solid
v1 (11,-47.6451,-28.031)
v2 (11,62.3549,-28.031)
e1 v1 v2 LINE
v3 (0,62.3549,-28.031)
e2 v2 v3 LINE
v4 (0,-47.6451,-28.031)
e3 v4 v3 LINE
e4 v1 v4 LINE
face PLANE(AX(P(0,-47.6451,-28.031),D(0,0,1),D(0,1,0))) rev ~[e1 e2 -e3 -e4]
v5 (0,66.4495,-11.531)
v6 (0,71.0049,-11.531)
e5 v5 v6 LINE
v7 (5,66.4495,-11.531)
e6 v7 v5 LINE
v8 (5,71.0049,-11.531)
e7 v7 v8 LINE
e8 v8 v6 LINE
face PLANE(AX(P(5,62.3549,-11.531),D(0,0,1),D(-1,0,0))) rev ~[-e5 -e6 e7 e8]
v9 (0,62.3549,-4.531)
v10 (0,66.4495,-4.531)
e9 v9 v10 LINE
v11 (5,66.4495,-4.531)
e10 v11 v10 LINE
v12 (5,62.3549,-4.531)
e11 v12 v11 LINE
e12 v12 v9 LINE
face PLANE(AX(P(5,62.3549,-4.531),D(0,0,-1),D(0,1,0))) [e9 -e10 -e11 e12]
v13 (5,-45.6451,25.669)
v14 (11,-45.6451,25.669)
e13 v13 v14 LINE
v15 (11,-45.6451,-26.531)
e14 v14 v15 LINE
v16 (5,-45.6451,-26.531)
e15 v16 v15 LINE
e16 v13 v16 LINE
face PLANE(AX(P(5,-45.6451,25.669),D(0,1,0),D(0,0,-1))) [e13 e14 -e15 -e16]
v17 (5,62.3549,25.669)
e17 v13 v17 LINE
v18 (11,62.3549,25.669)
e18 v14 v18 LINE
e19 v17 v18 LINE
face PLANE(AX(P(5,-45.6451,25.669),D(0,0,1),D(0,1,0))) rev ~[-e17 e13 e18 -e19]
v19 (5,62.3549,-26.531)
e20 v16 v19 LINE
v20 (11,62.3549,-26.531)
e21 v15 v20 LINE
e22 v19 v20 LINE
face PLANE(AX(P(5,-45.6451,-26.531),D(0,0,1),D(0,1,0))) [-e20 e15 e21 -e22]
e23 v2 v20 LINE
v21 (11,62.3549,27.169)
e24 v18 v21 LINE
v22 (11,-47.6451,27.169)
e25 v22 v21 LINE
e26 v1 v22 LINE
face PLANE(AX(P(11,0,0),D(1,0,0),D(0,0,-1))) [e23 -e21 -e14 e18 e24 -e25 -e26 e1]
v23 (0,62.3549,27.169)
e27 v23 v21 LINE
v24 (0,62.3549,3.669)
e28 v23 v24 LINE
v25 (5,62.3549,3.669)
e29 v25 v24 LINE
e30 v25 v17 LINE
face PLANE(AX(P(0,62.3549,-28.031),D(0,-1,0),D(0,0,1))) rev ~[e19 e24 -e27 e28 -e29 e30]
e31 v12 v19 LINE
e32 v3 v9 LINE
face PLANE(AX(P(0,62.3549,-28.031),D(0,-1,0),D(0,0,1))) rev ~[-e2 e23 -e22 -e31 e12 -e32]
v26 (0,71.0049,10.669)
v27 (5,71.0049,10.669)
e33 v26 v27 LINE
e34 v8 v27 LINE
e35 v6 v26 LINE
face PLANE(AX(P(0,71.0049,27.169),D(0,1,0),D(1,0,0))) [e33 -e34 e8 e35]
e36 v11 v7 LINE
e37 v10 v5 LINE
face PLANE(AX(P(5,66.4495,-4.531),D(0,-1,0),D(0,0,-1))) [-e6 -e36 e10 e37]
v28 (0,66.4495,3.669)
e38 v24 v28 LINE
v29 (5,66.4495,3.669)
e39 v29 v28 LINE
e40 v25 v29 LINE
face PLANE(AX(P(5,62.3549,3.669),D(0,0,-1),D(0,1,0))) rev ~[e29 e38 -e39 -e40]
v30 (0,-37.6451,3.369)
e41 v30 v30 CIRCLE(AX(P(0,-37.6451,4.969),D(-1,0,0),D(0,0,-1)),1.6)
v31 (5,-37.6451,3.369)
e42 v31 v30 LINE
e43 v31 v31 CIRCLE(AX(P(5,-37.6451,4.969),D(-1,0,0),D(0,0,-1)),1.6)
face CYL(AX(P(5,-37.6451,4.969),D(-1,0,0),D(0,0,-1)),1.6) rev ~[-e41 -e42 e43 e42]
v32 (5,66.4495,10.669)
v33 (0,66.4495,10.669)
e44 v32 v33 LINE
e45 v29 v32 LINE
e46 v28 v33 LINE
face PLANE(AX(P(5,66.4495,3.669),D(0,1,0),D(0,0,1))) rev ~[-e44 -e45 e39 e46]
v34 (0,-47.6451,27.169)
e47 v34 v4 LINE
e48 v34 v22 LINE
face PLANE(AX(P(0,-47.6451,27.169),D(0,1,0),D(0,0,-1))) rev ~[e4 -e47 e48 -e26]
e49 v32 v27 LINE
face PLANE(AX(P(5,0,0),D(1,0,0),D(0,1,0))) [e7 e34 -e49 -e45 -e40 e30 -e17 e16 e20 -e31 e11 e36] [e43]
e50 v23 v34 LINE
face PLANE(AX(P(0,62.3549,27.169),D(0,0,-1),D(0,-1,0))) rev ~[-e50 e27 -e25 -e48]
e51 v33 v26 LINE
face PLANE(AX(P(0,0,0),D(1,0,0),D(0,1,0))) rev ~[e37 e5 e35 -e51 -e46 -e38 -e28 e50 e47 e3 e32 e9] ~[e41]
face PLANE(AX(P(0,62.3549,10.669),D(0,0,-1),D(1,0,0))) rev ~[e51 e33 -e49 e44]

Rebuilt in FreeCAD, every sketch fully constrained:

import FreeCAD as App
import Part
import Sketcher

V = App.Vector
Q = App.Units.Quantity


def add_polygon(sketch, points):
    """Adds a closed chain of lines whose ends are joined by coincident constraints."""
    first, n = sketch.GeometryCount, len(points)
    for a, b in zip(points, points[1:] + points[:1]):
        sketch.addGeometry(Part.LineSegment(App.Vector(*a, 0), App.Vector(*b, 0)), False)
    for i in range(n):
        sketch.addConstraint(Sketcher.Constraint("Coincident", first + i, 2, first + (i + 1) % n, 1))

doc = App.newDocument("Part")
body = doc.addObject("PartDesign::Body", "Body")

# Sketch on YZ plane
sketch1 = body.newObject("Sketcher::SketchObject", "Sketch")
sketch1.AttachmentSupport = (doc.getObject("YZ_Plane"), [""])
sketch1.MapMode = "FlatFace"
add_polygon(sketch1, [(62, -28), (62, 27), (-48, 27), (-48, -28)])  # lines 0-3
sketch1.addConstraint([
    Sketcher.Constraint("Vertical", 0),
    Sketcher.Constraint("Horizontal", 1),
    Sketcher.Constraint("Vertical", 2),
    Sketcher.Constraint("Horizontal", 3),
    Sketcher.Constraint("DistanceX", 1, 2, 1, 1, Q("110 mm")),
    Sketcher.Constraint("DistanceY", 0, 1, 0, 2, Q("55.2 mm")),
    Sketcher.Constraint("DistanceX", -1, 1, 0, 2, Q("62.355 mm")),
    Sketcher.Constraint("DistanceY", -1, 1, 0, 2, Q("27.169 mm")),
])
pad1 = body.newObject("PartDesign::Pad", "Pad")
pad1.Profile = sketch1
pad1.Length = 5

# Sketch on YZ plane
sketch2 = body.newObject("Sketcher::SketchObject", "Sketch001")
sketch2.AttachmentSupport = (doc.getObject("YZ_Plane"), [""])
sketch2.MapMode = "FlatFace"
sketch2.AttachmentOffset = App.Placement(V(0, 0, 5), App.Rotation())
sketch2.addGeometry(Part.Circle(V(-37.6, 5, 0), V(0, 0, 1), 1.6), False)
sketch2.addConstraint([
    Sketcher.Constraint("Diameter", 0, Q("3.2 mm")),
    Sketcher.Constraint("DistanceX", 0, 3, -1, 1, Q("37.645 mm")),
    Sketcher.Constraint("DistanceY", -1, 1, 0, 3, Q("4.969 mm")),
])
doc.recompute()
hole = body.newObject("PartDesign::Hole", "Hole")
hole.Profile = sketch2
hole.ThreadType = "None"
hole.Diameter = 3.2
hole.DepthType = "ThroughAll"

# Sketch on YZ plane
sketch3 = body.newObject("Sketcher::SketchObject", "Sketch002")
sketch3.AttachmentSupport = (doc.getObject("YZ_Plane"), [""])
sketch3.MapMode = "FlatFace"
sketch3.AttachmentOffset = App.Placement(V(0, 0, 5), App.Rotation())
add_polygon(sketch3, [(-47.6, 27.2), (-47.6, -28), (62.4, -28), (62.4, -26.5), (-45.6, -26.5), (-45.6, 25.7), (62.4, 25.7), (62.4, 27.2)])  # lines 0-7
sketch3.addConstraint([
    Sketcher.Constraint("Vertical", 0),
    Sketcher.Constraint("Horizontal", 1),
    Sketcher.Constraint("Vertical", 2),
    Sketcher.Constraint("Horizontal", 3),
    Sketcher.Constraint("Vertical", 4),
    Sketcher.Constraint("Horizontal", 5),
    Sketcher.Constraint("Vertical", 6),
    Sketcher.Constraint("Horizontal", 7),
    Sketcher.Constraint("Vertical", 2, 2, 5, 2),
    Sketcher.Constraint("Equal", 2, 6),
    Sketcher.Constraint("DistanceY", 2, 1, 2, 2, Q("1.5 mm")),
    Sketcher.Constraint("DistanceX", 0, 2, 3, 2, Q("2 mm")),
    Sketcher.Constraint("DistanceX", 1, 1, 1, 2, Q("110 mm")),
    Sketcher.Constraint("DistanceY", 0, 2, 0, 1, Q("55.2 mm")),
    Sketcher.Constraint("DistanceX", 0, 2, -1, 1, Q("47.645 mm")),
    Sketcher.Constraint("DistanceY", 0, 2, -1, 1, Q("28.031 mm")),
])
pad2 = body.newObject("PartDesign::Pad", "Pad001")
pad2.Profile = sketch3
pad2.Length = 6

# Sketch on XZ plane
sketch4 = body.newObject("Sketcher::SketchObject", "Sketch003")
sketch4.AttachmentSupport = (doc.getObject("XZ_Plane"), [""])
sketch4.MapMode = "FlatFace"
sketch4.AttachmentOffset = App.Placement(V(0, 0, -62.3549), App.Rotation())
add_polygon(sketch4, [(0, 11), (5, 11), (5, -12), (0, -12)])  # lines 0-3
sketch4.addConstraint([
    Sketcher.Constraint("Horizontal", 0),
    Sketcher.Constraint("Vertical", 1),
    Sketcher.Constraint("Horizontal", 2),
    Sketcher.Constraint("Vertical", 3),
    Sketcher.Constraint("PointOnObject", 2, 2, -2),
    Sketcher.Constraint("DistanceX", 0, 1, 0, 2, Q("5 mm")),
    Sketcher.Constraint("DistanceY", 1, 2, 1, 1, Q("22.2 mm")),
    Sketcher.Constraint("DistanceY", -1, 1, 0, 2, Q("10.669 mm")),
])
pad3 = body.newObject("PartDesign::Pad", "Pad002")
pad3.Profile = sketch4
pad3.Length = 8.65
pad3.Reversed = True

# Sketch on YZ plane
sketch5 = body.newObject("Sketcher::SketchObject", "Sketch004")
sketch5.AttachmentSupport = (doc.getObject("YZ_Plane"), [""])
sketch5.MapMode = "FlatFace"
sketch5.AttachmentOffset = App.Placement(V(0, 0, 5), App.Rotation())
add_polygon(sketch5, [(62.4, -4.5), (62.4, -11.5), (66.4, -11.5), (66.4, -4.5)])  # lines 0-3
add_polygon(sketch5, [(66.4, 10.7), (62.4, 10.7), (62.4, 3.7), (66.4, 3.7)])  # lines 4-7
sketch5.addConstraint([
    Sketcher.Constraint("Vertical", 0),
    Sketcher.Constraint("Horizontal", 1),
    Sketcher.Constraint("Vertical", 2),
    Sketcher.Constraint("Horizontal", 3),
    Sketcher.Constraint("Horizontal", 4),
    Sketcher.Constraint("Vertical", 5),
    Sketcher.Constraint("Horizontal", 6),
    Sketcher.Constraint("Vertical", 7),
    Sketcher.Constraint("Vertical", 3, 2, 4, 2),
    Sketcher.Constraint("Vertical", 2, 2, 6, 2),
    Sketcher.Constraint("Equal", 2, 5),
    Sketcher.Constraint("DistanceY", 0, 2, 0, 1, Q("7 mm")),
    Sketcher.Constraint("DistanceX", 1, 1, 1, 2, Q("4.0946 mm")),
    Sketcher.Constraint("DistanceY", 3, 2, 4, 2, Q("15.2 mm")),
    Sketcher.Constraint("DistanceX", -1, 1, 0, 2, Q("62.355 mm")),
    Sketcher.Constraint("DistanceY", 0, 2, -1, 1, Q("11.531 mm")),
])
pocket1 = body.newObject("PartDesign::Pocket", "Pocket")
pocket1.Profile = sketch5
pocket1.Length = 8.65

doc.recompute()
